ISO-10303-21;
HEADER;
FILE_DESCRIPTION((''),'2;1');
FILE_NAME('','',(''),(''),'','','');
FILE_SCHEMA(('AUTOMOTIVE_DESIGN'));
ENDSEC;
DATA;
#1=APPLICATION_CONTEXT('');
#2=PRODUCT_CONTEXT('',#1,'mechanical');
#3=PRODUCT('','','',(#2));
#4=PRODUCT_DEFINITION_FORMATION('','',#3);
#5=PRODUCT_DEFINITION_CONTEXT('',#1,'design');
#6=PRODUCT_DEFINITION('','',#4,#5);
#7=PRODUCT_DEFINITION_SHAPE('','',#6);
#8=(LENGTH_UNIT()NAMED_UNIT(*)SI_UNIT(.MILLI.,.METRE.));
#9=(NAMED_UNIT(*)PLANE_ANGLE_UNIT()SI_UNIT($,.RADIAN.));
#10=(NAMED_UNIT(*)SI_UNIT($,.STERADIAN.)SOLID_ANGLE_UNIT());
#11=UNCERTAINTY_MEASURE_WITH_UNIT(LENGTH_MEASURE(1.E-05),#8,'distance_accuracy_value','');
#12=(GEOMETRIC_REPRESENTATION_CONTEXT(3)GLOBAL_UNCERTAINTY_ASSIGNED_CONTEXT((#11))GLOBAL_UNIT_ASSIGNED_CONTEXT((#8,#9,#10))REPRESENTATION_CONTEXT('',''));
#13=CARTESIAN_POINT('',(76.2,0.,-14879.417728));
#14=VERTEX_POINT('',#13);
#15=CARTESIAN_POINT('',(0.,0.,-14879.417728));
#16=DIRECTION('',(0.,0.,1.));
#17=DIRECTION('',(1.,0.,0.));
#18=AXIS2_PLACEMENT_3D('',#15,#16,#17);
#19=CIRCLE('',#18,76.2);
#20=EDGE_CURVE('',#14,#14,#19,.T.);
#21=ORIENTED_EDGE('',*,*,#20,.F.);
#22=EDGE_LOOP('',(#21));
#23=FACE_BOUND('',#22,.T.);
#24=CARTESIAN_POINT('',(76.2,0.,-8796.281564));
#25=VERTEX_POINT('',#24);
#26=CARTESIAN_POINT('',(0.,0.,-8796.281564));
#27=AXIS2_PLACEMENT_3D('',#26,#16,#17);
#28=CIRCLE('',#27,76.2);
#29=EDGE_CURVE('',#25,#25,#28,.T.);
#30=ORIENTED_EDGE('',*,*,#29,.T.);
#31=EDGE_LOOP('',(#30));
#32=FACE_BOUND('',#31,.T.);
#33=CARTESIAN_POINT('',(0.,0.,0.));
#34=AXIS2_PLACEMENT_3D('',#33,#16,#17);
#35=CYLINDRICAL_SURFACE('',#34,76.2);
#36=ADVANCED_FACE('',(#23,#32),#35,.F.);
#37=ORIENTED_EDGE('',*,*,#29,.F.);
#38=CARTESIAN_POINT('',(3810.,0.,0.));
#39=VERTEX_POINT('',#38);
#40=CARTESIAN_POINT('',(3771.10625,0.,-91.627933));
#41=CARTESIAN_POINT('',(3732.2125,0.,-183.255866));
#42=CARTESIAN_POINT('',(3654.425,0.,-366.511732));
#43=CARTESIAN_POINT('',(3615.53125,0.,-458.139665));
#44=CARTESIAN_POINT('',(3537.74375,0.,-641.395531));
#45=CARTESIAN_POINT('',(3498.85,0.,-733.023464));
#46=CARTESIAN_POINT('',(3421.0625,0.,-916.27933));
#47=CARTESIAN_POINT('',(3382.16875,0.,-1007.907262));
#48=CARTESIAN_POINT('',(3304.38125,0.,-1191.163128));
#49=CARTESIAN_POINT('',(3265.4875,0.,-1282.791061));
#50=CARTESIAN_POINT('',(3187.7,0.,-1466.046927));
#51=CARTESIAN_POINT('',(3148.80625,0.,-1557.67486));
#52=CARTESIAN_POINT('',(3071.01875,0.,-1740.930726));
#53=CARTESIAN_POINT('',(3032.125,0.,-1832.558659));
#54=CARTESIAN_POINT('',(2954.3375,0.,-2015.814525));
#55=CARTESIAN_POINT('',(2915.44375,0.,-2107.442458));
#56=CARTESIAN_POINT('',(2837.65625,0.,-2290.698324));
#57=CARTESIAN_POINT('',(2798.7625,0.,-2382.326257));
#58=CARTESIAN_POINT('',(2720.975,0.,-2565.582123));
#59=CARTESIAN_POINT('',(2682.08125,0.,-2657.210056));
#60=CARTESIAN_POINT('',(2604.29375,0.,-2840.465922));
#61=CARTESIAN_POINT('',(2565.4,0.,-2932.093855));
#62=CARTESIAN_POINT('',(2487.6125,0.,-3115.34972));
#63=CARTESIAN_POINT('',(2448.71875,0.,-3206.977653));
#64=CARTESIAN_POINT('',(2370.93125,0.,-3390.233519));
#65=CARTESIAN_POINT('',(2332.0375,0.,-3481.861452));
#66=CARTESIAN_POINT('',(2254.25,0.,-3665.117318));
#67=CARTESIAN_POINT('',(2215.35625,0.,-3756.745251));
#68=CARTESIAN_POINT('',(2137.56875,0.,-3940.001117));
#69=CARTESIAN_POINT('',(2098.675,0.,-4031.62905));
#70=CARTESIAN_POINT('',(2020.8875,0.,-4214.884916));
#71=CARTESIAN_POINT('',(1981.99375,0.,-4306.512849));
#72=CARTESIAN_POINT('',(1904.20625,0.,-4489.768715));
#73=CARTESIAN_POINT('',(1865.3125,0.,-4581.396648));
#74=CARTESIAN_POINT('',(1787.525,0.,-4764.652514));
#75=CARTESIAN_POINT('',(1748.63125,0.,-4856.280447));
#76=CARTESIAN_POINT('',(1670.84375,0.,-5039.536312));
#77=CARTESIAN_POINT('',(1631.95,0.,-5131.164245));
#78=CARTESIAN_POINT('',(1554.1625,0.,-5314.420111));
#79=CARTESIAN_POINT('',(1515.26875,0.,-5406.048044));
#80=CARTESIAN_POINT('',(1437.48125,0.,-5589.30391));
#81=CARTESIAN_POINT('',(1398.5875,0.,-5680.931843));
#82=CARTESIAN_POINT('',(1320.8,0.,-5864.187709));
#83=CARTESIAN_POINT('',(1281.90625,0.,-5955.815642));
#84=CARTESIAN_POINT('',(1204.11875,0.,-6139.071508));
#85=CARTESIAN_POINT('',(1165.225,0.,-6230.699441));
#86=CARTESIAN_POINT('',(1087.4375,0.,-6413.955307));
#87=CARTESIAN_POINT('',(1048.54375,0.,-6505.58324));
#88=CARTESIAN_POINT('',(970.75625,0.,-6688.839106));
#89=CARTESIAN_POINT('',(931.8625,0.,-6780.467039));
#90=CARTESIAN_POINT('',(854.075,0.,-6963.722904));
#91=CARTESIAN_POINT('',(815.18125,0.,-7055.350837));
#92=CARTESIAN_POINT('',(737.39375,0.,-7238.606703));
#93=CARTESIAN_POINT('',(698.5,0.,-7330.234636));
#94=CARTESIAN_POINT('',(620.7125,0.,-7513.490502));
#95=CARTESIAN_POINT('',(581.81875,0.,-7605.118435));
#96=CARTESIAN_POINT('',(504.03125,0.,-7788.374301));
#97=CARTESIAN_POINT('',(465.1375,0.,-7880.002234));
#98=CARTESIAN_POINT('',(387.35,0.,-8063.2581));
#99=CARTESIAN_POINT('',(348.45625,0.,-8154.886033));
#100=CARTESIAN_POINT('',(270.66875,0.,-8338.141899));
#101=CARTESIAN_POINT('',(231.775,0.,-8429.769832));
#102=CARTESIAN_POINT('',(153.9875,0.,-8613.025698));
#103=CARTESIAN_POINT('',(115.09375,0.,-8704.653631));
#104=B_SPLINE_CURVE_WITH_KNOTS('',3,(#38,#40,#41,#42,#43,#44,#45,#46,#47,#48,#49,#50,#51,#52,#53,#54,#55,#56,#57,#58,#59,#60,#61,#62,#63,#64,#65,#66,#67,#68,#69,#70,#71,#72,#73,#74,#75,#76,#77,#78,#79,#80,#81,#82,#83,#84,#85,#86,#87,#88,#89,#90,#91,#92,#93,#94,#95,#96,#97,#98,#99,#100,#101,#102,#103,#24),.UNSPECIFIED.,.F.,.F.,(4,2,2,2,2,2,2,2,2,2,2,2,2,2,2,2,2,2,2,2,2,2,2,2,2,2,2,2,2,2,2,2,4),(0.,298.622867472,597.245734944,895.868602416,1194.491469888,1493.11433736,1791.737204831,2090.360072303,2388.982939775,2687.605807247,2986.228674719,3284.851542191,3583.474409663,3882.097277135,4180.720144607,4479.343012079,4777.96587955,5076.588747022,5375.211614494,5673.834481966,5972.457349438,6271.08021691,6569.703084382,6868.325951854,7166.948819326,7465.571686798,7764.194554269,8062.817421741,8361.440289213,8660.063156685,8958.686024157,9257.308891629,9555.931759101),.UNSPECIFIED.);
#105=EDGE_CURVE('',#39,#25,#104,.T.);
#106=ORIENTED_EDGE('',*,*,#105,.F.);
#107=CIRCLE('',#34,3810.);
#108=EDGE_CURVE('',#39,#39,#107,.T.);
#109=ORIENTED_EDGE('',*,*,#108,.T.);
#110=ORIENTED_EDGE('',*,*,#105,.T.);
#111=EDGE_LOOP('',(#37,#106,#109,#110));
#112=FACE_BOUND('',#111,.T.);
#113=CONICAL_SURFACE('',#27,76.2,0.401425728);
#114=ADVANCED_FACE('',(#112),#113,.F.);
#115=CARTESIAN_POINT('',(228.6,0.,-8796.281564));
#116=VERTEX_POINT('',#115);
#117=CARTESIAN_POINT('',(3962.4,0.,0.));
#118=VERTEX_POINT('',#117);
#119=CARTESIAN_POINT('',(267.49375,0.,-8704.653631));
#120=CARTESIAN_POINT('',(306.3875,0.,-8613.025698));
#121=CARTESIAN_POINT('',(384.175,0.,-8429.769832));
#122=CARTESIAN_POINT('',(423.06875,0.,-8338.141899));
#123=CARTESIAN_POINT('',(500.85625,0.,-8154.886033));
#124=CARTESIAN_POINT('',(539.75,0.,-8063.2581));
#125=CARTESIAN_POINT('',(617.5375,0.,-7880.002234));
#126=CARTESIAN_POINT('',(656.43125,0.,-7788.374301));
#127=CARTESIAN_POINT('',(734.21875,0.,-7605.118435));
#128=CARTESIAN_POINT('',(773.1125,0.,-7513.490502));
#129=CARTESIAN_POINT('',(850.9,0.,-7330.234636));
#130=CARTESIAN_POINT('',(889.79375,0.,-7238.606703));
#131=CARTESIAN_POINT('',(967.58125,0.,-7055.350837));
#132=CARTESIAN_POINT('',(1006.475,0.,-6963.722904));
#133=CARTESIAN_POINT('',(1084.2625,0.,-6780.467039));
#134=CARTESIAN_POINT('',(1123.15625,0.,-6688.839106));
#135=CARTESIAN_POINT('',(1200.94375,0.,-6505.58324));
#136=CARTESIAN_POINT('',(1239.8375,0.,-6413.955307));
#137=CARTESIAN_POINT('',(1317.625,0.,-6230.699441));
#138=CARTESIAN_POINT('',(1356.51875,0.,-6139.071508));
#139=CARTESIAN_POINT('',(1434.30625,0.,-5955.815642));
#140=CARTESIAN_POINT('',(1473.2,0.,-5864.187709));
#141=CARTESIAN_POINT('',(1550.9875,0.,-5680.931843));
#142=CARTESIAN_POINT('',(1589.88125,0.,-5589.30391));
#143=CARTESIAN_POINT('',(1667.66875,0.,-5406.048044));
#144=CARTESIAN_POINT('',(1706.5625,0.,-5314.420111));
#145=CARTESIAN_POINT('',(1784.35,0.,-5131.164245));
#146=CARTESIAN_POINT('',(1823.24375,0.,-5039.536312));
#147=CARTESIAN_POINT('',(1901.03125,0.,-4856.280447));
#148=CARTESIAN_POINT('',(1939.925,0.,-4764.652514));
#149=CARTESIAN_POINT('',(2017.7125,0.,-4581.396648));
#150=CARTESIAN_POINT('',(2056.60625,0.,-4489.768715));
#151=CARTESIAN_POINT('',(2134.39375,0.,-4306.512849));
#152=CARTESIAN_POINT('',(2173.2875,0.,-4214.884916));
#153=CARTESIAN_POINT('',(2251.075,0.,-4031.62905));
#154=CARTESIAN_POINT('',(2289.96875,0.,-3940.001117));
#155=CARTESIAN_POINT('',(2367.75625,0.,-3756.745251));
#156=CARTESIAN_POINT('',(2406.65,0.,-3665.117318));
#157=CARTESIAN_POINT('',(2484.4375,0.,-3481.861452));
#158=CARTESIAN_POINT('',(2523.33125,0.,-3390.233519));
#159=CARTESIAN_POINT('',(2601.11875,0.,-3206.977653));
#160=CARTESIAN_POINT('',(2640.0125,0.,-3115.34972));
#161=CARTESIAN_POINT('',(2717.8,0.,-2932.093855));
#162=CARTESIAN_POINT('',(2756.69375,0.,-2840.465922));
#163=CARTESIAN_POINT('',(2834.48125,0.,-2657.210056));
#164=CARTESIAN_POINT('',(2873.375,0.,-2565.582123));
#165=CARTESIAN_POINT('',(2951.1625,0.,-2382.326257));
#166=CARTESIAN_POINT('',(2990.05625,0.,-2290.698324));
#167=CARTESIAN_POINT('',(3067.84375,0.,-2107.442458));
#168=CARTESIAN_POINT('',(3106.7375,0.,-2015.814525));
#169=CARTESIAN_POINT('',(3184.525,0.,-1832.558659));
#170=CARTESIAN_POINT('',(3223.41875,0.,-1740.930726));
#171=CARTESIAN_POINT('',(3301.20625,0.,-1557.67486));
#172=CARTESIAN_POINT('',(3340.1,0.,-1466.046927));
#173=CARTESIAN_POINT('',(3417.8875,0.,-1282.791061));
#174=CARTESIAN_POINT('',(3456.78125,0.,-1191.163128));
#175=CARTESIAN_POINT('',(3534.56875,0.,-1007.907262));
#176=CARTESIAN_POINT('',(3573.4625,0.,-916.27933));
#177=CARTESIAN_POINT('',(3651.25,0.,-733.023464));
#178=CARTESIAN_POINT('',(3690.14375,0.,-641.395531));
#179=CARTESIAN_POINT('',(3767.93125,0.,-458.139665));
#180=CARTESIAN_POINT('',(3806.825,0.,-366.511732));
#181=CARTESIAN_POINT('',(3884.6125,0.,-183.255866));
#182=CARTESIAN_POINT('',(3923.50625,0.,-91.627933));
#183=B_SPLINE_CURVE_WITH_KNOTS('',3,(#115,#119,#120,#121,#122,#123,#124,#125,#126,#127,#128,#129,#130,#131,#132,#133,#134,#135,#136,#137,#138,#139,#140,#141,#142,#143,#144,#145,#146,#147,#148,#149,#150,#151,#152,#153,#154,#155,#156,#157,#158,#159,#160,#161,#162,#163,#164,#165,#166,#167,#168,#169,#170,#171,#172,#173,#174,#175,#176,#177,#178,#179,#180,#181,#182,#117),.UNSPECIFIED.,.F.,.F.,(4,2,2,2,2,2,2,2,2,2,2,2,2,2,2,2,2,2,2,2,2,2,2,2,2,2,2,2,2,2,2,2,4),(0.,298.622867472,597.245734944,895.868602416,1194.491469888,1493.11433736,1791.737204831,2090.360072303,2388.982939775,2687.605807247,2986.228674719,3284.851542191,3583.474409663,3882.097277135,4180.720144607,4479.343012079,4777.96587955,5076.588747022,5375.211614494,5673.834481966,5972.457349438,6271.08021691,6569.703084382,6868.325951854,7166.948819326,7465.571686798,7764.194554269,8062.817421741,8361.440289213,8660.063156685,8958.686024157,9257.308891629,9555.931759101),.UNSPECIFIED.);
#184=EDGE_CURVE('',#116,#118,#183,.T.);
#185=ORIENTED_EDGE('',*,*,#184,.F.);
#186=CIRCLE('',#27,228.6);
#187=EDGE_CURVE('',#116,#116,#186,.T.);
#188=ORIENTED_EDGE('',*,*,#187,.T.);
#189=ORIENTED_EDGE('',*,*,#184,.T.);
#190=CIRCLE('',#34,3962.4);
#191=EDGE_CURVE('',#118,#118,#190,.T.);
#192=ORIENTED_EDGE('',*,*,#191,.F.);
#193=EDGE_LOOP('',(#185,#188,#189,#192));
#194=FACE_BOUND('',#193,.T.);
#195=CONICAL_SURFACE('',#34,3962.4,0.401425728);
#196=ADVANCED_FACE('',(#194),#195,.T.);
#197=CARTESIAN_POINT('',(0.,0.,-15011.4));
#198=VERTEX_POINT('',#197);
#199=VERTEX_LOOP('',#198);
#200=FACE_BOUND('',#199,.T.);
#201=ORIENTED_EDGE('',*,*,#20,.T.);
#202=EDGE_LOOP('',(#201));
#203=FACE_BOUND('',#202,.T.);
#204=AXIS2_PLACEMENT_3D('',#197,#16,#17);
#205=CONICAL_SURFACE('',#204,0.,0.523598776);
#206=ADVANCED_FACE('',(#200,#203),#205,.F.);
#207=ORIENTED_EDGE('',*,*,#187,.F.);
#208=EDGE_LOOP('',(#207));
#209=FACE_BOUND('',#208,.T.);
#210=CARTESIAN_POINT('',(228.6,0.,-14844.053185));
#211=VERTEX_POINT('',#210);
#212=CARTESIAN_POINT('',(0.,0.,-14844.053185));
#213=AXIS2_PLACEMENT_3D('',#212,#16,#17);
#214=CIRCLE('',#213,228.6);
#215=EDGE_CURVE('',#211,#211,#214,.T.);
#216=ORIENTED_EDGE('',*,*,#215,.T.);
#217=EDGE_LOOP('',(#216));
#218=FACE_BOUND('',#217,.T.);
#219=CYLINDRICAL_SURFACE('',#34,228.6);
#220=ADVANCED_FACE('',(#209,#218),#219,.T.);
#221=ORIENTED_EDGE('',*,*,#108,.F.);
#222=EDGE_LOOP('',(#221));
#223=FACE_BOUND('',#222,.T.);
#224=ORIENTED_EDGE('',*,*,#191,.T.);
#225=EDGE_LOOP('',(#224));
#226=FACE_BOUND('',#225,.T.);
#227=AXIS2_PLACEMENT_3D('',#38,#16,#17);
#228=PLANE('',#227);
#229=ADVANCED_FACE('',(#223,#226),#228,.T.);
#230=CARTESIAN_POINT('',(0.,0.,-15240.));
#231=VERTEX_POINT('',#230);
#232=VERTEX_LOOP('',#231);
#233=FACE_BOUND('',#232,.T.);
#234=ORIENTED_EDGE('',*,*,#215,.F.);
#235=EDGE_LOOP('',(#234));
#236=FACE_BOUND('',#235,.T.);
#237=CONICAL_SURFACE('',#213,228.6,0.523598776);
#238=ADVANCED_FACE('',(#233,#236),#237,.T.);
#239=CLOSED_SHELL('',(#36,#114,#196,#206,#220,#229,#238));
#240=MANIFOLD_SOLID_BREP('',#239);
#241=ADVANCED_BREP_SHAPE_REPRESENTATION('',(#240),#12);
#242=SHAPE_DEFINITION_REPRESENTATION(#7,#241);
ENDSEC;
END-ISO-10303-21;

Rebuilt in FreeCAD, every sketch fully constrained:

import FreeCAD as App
import Part
import Sketcher

V = App.Vector
Q = App.Units.Quantity

doc = App.newDocument("Part")
params = doc.addObject("Spreadsheet::Sheet", "Params")
for row, (alias, value) in enumerate([
    ("sketch1_width", "6 in"),
    ("sketch1_height", "9 in"),
    ("sketch1_length", "18 in"),
    ("sketch1_length2", "6 in"),
    ("revolution_angle", "360 deg"),
], start=1):
    params.set(f"A{row}", alias)
    params.set(f"B{row}", "=" + value)
    params.setAlias(f"B{row}", alias)

body = doc.addObject("PartDesign::Body", "Body")

# Sketch on XZ plane
sketch1 = body.newObject("Sketcher::SketchObject", "Sketch")
sketch1.AttachmentSupport = (doc.getObject("XZ_Plane"), [""])
sketch1.MapMode = "FlatFace"
sketch1.addGeometry([
    Part.LineSegment(V(3810, 0, 0), V(3962.4, 0, 0)),  # 0
    Part.LineSegment(V(3962.4, 0, 0), V(228.6, -8796.281564, 0)),  # 1
    Part.LineSegment(V(228.6, -8796.281564, 0), V(228.6, -14844.053185, 0)),  # 2
    Part.LineSegment(V(228.6, -14844.053185, 0), V(0, -15240, 0)),  # 3
    Part.LineSegment(V(0, -15240, 0), V(0, -15011.4, 0)),  # 4
    Part.LineSegment(V(0, -15011.4, 0), V(76.2, -14879.417728, 0)),  # 5
    Part.LineSegment(V(76.2, -14879.417728, 0), V(76.2, -8796.281564, 0)),  # 6
    Part.LineSegment(V(76.2, -8796.281564, 0), V(3810, 0, 0)),  # 7
], False)
sketch1.addConstraint([
    Sketcher.Constraint("Coincident", 0, 2, 1, 1),
    Sketcher.Constraint("Coincident", 1, 2, 2, 1),
    Sketcher.Constraint("Coincident", 2, 2, 3, 1),
    Sketcher.Constraint("Coincident", 3, 2, 4, 1),
    Sketcher.Constraint("Coincident", 4, 2, 5, 1),
    Sketcher.Constraint("Coincident", 5, 2, 6, 1),
    Sketcher.Constraint("Coincident", 6, 2, 7, 1),
    Sketcher.Constraint("Coincident", 7, 2, 0, 1),
    Sketcher.Constraint("Horizontal", 0),
    Sketcher.Constraint("Vertical", 2),
    Sketcher.Constraint("Vertical", 4),
    Sketcher.Constraint("Vertical", 6),
    Sketcher.Constraint("PointOnObject", 0, 2, -1),
    Sketcher.Constraint("PointOnObject", 3, 2, -2),
    Sketcher.Constraint("Parallel", 3, 5),
    Sketcher.Constraint("Parallel", 1, 7),
    Sketcher.Constraint("Horizontal", 1, 2, 6, 2),
    Sketcher.Constraint("DistanceX", 0, 1, 0, 2, Q("6 in")),
    Sketcher.Constraint("DistanceY", 4, 1, 4, 2, Q("9 in")),
    Sketcher.Constraint("Distance", 3, Q("18 in")),
    Sketcher.Constraint("Distance", 5, Q("6 in")),
    Sketcher.Constraint("DistanceX", -1, 1, 0, 2, Q("156 in")),
    Sketcher.Constraint("DistanceY", 3, 2, -1, 1, Q("600 in")),
    Sketcher.Constraint("Angle", 1, Q("-113 deg")),
])
sketch1.setExpression("Constraints[17]", "Params.sketch1_width")
sketch1.setExpression("Constraints[18]", "Params.sketch1_height")
sketch1.setExpression("Constraints[19]", "Params.sketch1_length")
sketch1.setExpression("Constraints[20]", "Params.sketch1_length2")
revolution = body.newObject("PartDesign::Revolution", "Revolution")
revolution.Profile = sketch1
revolution.ReferenceAxis = (sketch1, ["V_Axis"])
revolution.setExpression("Angle", "Params.revolution_angle")

doc.recompute()
